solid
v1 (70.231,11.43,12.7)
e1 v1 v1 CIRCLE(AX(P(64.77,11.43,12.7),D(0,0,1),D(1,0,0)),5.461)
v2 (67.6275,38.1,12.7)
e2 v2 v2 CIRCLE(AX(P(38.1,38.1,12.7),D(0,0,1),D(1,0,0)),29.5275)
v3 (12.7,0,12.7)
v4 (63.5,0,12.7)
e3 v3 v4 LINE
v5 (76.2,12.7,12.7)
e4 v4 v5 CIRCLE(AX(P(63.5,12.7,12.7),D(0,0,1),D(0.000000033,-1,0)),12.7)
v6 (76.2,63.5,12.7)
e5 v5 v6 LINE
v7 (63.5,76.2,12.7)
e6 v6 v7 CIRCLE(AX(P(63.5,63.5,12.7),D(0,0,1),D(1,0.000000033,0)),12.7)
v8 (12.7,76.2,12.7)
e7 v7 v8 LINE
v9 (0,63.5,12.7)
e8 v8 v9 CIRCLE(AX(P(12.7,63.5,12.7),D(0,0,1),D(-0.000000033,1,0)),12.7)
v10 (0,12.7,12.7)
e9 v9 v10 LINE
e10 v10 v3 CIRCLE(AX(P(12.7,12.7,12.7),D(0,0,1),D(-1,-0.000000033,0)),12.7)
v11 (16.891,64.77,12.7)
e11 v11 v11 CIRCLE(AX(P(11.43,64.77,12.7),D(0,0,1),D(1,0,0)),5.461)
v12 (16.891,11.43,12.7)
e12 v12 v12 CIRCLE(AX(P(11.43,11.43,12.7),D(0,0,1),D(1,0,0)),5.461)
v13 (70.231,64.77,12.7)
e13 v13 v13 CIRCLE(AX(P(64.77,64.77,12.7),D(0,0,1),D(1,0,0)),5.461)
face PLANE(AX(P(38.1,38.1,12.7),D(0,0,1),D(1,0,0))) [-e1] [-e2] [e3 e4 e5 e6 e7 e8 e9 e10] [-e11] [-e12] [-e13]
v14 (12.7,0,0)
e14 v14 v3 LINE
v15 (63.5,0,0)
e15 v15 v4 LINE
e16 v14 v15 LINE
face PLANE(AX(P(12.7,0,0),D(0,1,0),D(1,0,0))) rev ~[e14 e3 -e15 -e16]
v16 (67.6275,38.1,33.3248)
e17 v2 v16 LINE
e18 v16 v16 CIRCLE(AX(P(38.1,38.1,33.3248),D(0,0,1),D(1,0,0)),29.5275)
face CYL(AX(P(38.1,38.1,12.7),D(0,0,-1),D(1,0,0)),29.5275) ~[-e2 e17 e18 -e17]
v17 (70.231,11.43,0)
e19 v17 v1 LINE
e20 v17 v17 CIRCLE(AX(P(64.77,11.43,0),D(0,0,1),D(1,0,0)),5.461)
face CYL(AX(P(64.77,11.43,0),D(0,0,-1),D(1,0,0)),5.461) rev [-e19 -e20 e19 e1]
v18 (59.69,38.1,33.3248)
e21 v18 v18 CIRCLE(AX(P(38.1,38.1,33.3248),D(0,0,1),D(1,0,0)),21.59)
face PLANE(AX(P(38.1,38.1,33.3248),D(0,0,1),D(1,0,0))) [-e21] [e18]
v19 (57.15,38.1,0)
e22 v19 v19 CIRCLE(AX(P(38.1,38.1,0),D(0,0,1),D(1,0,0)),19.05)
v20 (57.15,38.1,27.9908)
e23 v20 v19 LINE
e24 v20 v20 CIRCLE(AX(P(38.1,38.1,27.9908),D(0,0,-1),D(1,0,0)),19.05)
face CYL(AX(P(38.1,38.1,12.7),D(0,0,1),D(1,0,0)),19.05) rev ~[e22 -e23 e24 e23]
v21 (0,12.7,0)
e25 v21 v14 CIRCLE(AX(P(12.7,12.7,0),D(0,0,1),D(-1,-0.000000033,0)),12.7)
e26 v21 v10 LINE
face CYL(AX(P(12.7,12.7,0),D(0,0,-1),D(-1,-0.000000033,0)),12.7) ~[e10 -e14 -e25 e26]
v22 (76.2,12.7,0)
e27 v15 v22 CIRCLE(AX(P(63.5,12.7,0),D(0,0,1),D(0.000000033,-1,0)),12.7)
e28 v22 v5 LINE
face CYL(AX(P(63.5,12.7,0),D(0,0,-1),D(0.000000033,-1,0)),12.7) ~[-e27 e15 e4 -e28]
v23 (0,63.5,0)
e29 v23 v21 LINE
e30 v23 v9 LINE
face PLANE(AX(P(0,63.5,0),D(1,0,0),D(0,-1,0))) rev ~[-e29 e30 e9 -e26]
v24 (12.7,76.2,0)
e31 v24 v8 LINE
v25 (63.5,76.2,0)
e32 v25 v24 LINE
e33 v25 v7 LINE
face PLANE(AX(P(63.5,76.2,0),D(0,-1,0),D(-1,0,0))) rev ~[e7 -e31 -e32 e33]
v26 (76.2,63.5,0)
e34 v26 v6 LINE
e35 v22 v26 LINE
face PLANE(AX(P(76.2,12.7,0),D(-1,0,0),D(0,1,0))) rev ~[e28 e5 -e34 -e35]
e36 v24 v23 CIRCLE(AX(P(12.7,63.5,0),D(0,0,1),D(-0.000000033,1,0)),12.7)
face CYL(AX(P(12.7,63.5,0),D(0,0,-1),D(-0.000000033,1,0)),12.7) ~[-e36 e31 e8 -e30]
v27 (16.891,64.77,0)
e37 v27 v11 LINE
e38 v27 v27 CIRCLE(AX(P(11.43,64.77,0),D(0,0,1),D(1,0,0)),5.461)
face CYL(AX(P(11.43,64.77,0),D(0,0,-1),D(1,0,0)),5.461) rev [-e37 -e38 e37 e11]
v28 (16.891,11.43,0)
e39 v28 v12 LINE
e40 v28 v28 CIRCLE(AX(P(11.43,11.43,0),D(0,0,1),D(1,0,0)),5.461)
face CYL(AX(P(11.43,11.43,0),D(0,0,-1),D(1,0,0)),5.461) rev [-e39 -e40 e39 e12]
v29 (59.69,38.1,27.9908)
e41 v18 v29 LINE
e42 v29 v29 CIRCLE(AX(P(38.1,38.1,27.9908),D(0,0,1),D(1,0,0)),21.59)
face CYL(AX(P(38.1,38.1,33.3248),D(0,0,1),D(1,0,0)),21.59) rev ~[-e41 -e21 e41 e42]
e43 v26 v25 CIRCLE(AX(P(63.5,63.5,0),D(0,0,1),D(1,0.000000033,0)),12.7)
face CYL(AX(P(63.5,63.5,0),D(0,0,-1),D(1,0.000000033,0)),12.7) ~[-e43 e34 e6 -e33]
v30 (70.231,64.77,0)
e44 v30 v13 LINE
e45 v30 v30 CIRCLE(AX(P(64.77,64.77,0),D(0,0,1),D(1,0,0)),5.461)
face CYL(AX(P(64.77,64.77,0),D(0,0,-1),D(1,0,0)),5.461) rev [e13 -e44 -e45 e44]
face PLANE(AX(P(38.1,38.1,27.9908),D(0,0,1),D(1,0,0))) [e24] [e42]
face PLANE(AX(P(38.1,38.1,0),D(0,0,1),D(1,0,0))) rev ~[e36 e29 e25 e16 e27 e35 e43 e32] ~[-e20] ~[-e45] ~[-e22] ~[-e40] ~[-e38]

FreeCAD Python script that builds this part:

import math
import FreeCAD as App
import Part
import Sketcher
Q = App.Units.Quantity

doc = App.newDocument("Part")
params = doc.addObject("Spreadsheet::Sheet", "Params")
for row, (alias, value) in enumerate([
    ("sketch1_radius", "0.5 in"),
    ("sketch1_diameter", "0.43 in"),
    ("sketch1_width", "2 in"),
    ("pad1_length", "0.5 in"),
    ("sketch2_diameter", "1.5 in"),
    ("sketch2_diameter2", "2.325 in"),
    ("pad2_length", "0.812 in"),
    ("sketch3_diameter", "1.7 in"),
    ("pocket1_length", "0.21 in"),
    ("sketch4_diameter", "1.5 in"),
    ("pocket2_length", "1 in"),
], start=1):
    params.set(f"A{row}", alias)
    params.set(f"B{row}", "=" + value)
    params.setAlias(f"B{row}", alias)

body = doc.addObject("PartDesign::Body", "Body")

# Sketch on XY plane
sketch1 = body.newObject("Sketcher::SketchObject", "Sketch")
sketch1.AttachmentSupport = (doc.getObject("XY_Plane"), [""])
sketch1.MapMode = "FlatFace"
sketch1.addGeometry(Part.ArcOfCircle(Part.Circle(App.Vector(13, 13, 0), App.Vector(0, 0, 1), 13), math.radians(-180), math.radians(-90)), False)
sketch1.addGeometry(Part.LineSegment(App.Vector(13, 0, 0), App.Vector(64, 0, 0)), False)
sketch1.addGeometry(Part.ArcOfCircle(Part.Circle(App.Vector(63, 13, 0), App.Vector(0, 0, 1), 13), math.radians(-90), math.radians(0)), False)
sketch1.addGeometry(Part.LineSegment(App.Vector(76, 13, 0), App.Vector(76, 64, 0)), False)
sketch1.addGeometry(Part.ArcOfCircle(Part.Circle(App.Vector(63, 63, 0), App.Vector(0, 0, 1), 13), math.radians(0), math.radians(90)), False)
sketch1.addGeometry(Part.LineSegment(App.Vector(64, 76, 0), App.Vector(13, 76, 0)), False)
sketch1.addGeometry(Part.ArcOfCircle(Part.Circle(App.Vector(13, 63, 0), App.Vector(0, 0, 1), 13), math.radians(90), math.radians(180)), False)
sketch1.addGeometry(Part.LineSegment(App.Vector(0, 64, 0), App.Vector(0, 13, 0)), False)
sketch1.addGeometry(Part.Circle(App.Vector(11, 11, 0), App.Vector(0, 0, 1), 5), False)
sketch1.addGeometry(Part.Circle(App.Vector(65, 11, 0), App.Vector(0, 0, 1), 5), False)
sketch1.addGeometry(Part.Circle(App.Vector(11, 65, 0), App.Vector(0, 0, 1), 5), False)
sketch1.addGeometry(Part.Circle(App.Vector(65, 65, 0), App.Vector(0, 0, 1), 5), False)
sketch1.addConstraint(Sketcher.Constraint("Tangent", 0, 2, 1, 1))
sketch1.addConstraint(Sketcher.Constraint("Tangent", 1, 2, 2, 1))
sketch1.addConstraint(Sketcher.Constraint("Tangent", 2, 2, 3, 1))
sketch1.addConstraint(Sketcher.Constraint("Tangent", 3, 2, 4, 1))
sketch1.addConstraint(Sketcher.Constraint("Tangent", 4, 2, 5, 1))
sketch1.addConstraint(Sketcher.Constraint("Tangent", 5, 2, 6, 1))
sketch1.addConstraint(Sketcher.Constraint("Tangent", 6, 2, 7, 1))
sketch1.addConstraint(Sketcher.Constraint("Tangent", 7, 2, 0, 1))
sketch1.addConstraint(Sketcher.Constraint("Horizontal", 1))
sketch1.addConstraint(Sketcher.Constraint("Vertical", 3))
sketch1.addConstraint(Sketcher.Constraint("Horizontal", 5))
sketch1.addConstraint(Sketcher.Constraint("Vertical", 7))
sketch1.addConstraint(Sketcher.Constraint("Equal", 0, 2))
sketch1.addConstraint(Sketcher.Constraint("Equal", 2, 4))
sketch1.addConstraint(Sketcher.Constraint("Equal", 4, 6))
sketch1.addConstraint(Sketcher.Constraint("Equal", 8, 9))
sketch1.addConstraint(Sketcher.Constraint("Equal", 9, 10))
sketch1.addConstraint(Sketcher.Constraint("Equal", 10, 11))
sketch1.addConstraint(Sketcher.Constraint("PointOnObject", 0, 2, -1))
sketch1.addConstraint(Sketcher.Constraint("PointOnObject", 6, 2, -2))
sketch1.addConstraint(Sketcher.Constraint("Horizontal", 8, 3, 9, 3))
sketch1.addConstraint(Sketcher.Constraint("Horizontal", 10, 3, 11, 3))
sketch1.addConstraint(Sketcher.Constraint("Vertical", 8, 3, 10, 3))
sketch1.addConstraint(Sketcher.Constraint("Vertical", 9, 3, 11, 3))
sketch1.addConstraint(Sketcher.Constraint("Equal", 5, 3))
sketch1.addConstraint(Sketcher.Constraint("Radius", 0, Q("0.5 in")))
sketch1.addConstraint(Sketcher.Constraint("Diameter", 8, Q("0.43 in")))
sketch1.addConstraint(Sketcher.Constraint("DistanceX", 1, 1, 1, 2, Q("2 in")))
sketch1.addConstraint(Sketcher.Constraint("DistanceX", 8, 3, 9, 3, Q("2.1 in")))
sketch1.addConstraint(Sketcher.Constraint("DistanceY", 8, 3, 10, 3, Q("2.1 in")))
sketch1.addConstraint(Sketcher.Constraint("DistanceX", -1, 1, 8, 3, Q("0.45 in")))
sketch1.addConstraint(Sketcher.Constraint("DistanceY", -1, 1, 8, 3, Q("0.45 in")))
sketch1.setExpression("Constraints[25]", "Params.sketch1_radius")
sketch1.setExpression("Constraints[26]", "Params.sketch1_diameter")
sketch1.setExpression("Constraints[27]", "Params.sketch1_width")
pad1 = body.newObject("PartDesign::Pad", "Pad")
pad1.Profile = sketch1
pad1.setExpression("Length", "Params.pad1_length")

# Sketch on XY plane
sketch2 = body.newObject("Sketcher::SketchObject", "Sketch001")
sketch2.AttachmentSupport = (doc.getObject("XY_Plane"), [""])
sketch2.MapMode = "FlatFace"
sketch2.AttachmentOffset = App.Placement(App.Vector(0, 0, 0.5 * 25.4), App.Rotation())
sketch2.addGeometry(Part.Circle(App.Vector(38, 38, 0), App.Vector(0, 0, 1), 30), False)
sketch2.addGeometry(Part.Circle(App.Vector(38, 38, 0), App.Vector(0, 0, 1), 19), False)
sketch2.addConstraint(Sketcher.Constraint("Coincident", 1, 3, 0, 3))
sketch2.addConstraint(Sketcher.Constraint("Diameter", 1, Q("1.5 in")))
sketch2.addConstraint(Sketcher.Constraint("Diameter", 0, Q("2.325 in")))
sketch2.addConstraint(Sketcher.Constraint("DistanceX", -1, 1, 0, 3, Q("1.5 in")))
sketch2.addConstraint(Sketcher.Constraint("DistanceY", -1, 1, 0, 3, Q("1.5 in")))
sketch2.setExpression("Constraints[1]", "Params.sketch2_diameter")
sketch2.setExpression("Constraints[2]", "Params.sketch2_diameter2")
pad2 = body.newObject("PartDesign::Pad", "Pad001")
pad2.Profile = sketch2
pad2.setExpression("Length", "Params.pad2_length")

# Sketch on XY plane
sketch3 = body.newObject("Sketcher::SketchObject", "Sketch002")
sketch3.AttachmentSupport = (doc.getObject("XY_Plane"), [""])
sketch3.MapMode = "FlatFace"
sketch3.AttachmentOffset = App.Placement(App.Vector(0, 0, 1.312 * 25.4), App.Rotation())
sketch3.addGeometry(Part.Circle(App.Vector(38, 38, 0), App.Vector(0, 0, 1), 22), False)
sketch3.addConstraint(Sketcher.Constraint("Diameter", 0, Q("1.7 in")))
sketch3.addConstraint(Sketcher.Constraint("DistanceX", -1, 1, 0, 3, Q("1.5 in")))
sketch3.addConstraint(Sketcher.Constraint("DistanceY", -1, 1, 0, 3, Q("1.5 in")))
sketch3.setExpression("Constraints[0]", "Params.sketch3_diameter")
pocket1 = body.newObject("PartDesign::Pocket", "Pocket")
pocket1.Profile = sketch3
pocket1.setExpression("Length", "Params.pocket1_length")

# Sketch on XY plane
sketch4 = body.newObject("Sketcher::SketchObject", "Sketch003")
sketch4.AttachmentSupport = (doc.getObject("XY_Plane"), [""])
sketch4.MapMode = "FlatFace"
sketch4.AttachmentOffset = App.Placement(App.Vector(0, 0, 0.5 * 25.4), App.Rotation())
sketch4.addGeometry(Part.Circle(App.Vector(38, 38, 0), App.Vector(0, 0, 1), 19), False)
sketch4.addConstraint(Sketcher.Constraint("Diameter", 0, Q("1.5 in")))
sketch4.addConstraint(Sketcher.Constraint("DistanceX", -1, 1, 0, 3, Q("1.5 in")))
sketch4.addConstraint(Sketcher.Constraint("DistanceY", -1, 1, 0, 3, Q("1.5 in")))
sketch4.setExpression("Constraints[0]", "Params.sketch4_diameter")
pocket2 = body.newObject("PartDesign::Pocket", "Pocket001")
pocket2.Profile = sketch4
pocket2.setExpression("Length", "Params.pocket2_length")

doc.recompute()
